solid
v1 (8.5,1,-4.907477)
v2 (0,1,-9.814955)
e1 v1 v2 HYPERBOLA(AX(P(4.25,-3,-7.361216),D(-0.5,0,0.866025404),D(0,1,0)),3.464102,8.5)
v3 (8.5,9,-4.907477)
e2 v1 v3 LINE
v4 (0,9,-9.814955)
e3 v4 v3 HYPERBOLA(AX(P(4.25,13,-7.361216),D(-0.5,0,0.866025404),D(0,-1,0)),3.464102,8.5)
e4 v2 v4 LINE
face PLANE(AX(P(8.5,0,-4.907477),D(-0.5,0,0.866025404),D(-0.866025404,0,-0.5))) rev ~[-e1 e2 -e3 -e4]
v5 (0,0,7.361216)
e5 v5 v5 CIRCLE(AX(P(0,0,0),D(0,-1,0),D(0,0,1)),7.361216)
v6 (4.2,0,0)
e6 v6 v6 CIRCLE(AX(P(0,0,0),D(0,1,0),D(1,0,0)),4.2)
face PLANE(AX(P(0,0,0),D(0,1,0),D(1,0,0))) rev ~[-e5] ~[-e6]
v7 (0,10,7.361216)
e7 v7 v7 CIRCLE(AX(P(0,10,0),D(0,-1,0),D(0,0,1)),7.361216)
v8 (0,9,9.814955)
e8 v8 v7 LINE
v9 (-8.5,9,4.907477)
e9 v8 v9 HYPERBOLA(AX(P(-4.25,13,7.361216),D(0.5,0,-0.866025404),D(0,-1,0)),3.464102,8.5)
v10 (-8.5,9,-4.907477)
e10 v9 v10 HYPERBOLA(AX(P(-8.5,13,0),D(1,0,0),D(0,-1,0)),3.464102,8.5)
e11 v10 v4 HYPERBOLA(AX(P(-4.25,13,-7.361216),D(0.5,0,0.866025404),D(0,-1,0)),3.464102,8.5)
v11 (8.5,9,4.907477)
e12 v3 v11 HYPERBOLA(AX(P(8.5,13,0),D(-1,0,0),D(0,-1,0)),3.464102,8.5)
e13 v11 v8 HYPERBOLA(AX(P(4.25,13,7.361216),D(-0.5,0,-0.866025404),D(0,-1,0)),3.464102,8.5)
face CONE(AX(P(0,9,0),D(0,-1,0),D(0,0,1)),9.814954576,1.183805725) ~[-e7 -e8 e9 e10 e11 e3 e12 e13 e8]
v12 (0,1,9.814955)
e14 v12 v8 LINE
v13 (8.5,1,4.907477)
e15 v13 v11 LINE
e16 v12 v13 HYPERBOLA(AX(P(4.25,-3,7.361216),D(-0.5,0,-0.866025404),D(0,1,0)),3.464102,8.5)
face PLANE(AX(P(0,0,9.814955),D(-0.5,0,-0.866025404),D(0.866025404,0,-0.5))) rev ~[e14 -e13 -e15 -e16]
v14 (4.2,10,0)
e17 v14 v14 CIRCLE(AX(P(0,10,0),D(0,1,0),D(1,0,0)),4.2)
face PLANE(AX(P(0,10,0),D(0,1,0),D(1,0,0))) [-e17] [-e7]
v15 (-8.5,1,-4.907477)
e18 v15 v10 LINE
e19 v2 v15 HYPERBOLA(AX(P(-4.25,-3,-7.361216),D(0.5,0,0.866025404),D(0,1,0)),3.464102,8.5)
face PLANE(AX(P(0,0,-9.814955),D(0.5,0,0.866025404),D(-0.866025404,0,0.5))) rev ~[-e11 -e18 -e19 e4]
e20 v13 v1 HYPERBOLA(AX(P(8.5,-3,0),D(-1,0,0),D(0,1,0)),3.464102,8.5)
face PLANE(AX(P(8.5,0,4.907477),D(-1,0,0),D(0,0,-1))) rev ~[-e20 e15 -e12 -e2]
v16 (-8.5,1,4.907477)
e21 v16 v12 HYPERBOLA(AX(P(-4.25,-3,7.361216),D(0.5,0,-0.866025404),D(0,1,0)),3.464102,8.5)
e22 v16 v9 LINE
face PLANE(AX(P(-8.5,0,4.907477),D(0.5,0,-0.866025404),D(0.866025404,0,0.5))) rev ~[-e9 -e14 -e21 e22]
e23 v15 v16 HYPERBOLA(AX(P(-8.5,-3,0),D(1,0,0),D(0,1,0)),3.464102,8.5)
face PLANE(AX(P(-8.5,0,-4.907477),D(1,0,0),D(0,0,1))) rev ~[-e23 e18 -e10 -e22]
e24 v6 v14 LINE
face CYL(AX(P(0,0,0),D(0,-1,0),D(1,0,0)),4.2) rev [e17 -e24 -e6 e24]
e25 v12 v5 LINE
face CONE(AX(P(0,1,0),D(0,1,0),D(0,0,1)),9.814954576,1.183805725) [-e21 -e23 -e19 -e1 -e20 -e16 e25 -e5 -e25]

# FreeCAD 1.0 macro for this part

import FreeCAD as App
import Part
import Sketcher

V = App.Vector
Q = App.Units.Quantity

doc = App.newDocument("Part")
body = doc.addObject("PartDesign::Body", "Body")

sketch1 = doc.addObject("Sketcher::SketchObject", "Sketch")
body.addObject(sketch1)
sketch1.AttachmentSupport = (doc.XZ_Plane, [""])
sketch1.MapMode = "FlatFace"
sketch1.addGeometry(Part.LineSegment(V(0, -9.8, 0), V(-8.5, -4.9, 0)), False)
sketch1.addGeometry(Part.LineSegment(V(-8.5, -4.9, 0), V(-8.5, 4.9, 0)), False)
sketch1.addGeometry(Part.LineSegment(V(-8.5, 4.9, 0), V(0, 9.8, 0)), False)
sketch1.addGeometry(Part.LineSegment(V(0, 9.8, 0), V(8.5, 4.9, 0)), False)
sketch1.addGeometry(Part.LineSegment(V(8.5, 4.9, 0), V(8.5, -4.9, 0)), False)
sketch1.addGeometry(Part.LineSegment(V(8.5, -4.9, 0), V(0, -9.8, 0)), False)
sketch1.addGeometry(Part.Circle(V(0, 0, 0), V(0, 0, 1), 4.2), False)
sketch1.addConstraint(Sketcher.Constraint("Coincident", 0, 2, 1, 1))
sketch1.addConstraint(Sketcher.Constraint("Coincident", 1, 2, 2, 1))
sketch1.addConstraint(Sketcher.Constraint("Coincident", 2, 2, 3, 1))
sketch1.addConstraint(Sketcher.Constraint("Coincident", 3, 2, 4, 1))
sketch1.addConstraint(Sketcher.Constraint("Coincident", 4, 2, 5, 1))
sketch1.addConstraint(Sketcher.Constraint("Coincident", 5, 2, 0, 1))
sketch1.addConstraint(Sketcher.Constraint("Vertical", 1))
sketch1.addConstraint(Sketcher.Constraint("Vertical", 4))
sketch1.addConstraint(Sketcher.Constraint("Coincident", 6, 3, -1, 1))
sketch1.addConstraint(Sketcher.Constraint("Symmetric", 0, 2, 3, 2, -1, 1))
sketch1.addConstraint(Sketcher.Constraint("Symmetric", 2, 2, 5, 2, -1, 1))
sketch1.addConstraint(Sketcher.Constraint("PointOnObject", 2, 2, -2))
sketch1.addConstraint(Sketcher.Constraint("Parallel", 2, 5))
sketch1.addConstraint(Sketcher.Constraint("Horizontal", 1, 2, 3, 2))
sketch1.addConstraint(Sketcher.Constraint("Diameter", 6, 8.4))
sketch1.addConstraint(Sketcher.Constraint("Angle", 0, Q("150 deg")))
sketch1.addConstraint(Sketcher.Constraint("DistanceX", 1, 2, 3, 2, 17.0))
sketch1.addConstraint(Sketcher.Constraint("DistanceY", 1, 1, 1, 2, 9.814955))
pad1 = doc.addObject("PartDesign::Pad", "Pad")
body.addObject(pad1)
pad1.Profile = sketch1
pad1.Length = 10
pad1.Reversed = True

sketch2 = doc.addObject("Sketcher::SketchObject", "Sketch001")
body.addObject(sketch2)
sketch2.AttachmentSupport = (doc.YZ_Plane, [""])
sketch2.MapMode = "FlatFace"
sketch2.addGeometry(Part.LineSegment(V(9, 9.8, 0), V(10, 7.4, 0)), False)
sketch2.addGeometry(Part.LineSegment(V(10, 7.4, 0), V(10, 9.8, 0)), False)
sketch2.addGeometry(Part.LineSegment(V(10, 9.8, 0), V(9, 9.8, 0)), False)
sketch2.addGeometry(Part.LineSegment(V(0, 9.8, 0), V(0, 7.4, 0)), False)
sketch2.addGeometry(Part.LineSegment(V(0, 7.4, 0), V(1, 9.8, 0)), False)
sketch2.addGeometry(Part.LineSegment(V(1, 9.8, 0), V(0, 9.8, 0)), False)
sketch2.addConstraint(Sketcher.Constraint("Coincident", 0, 2, 1, 1))
sketch2.addConstraint(Sketcher.Constraint("Coincident", 1, 2, 2, 1))
sketch2.addConstraint(Sketcher.Constraint("Coincident", 2, 2, 0, 1))
sketch2.addConstraint(Sketcher.Constraint("Coincident", 3, 2, 4, 1))
sketch2.addConstraint(Sketcher.Constraint("Coincident", 4, 2, 5, 1))
sketch2.addConstraint(Sketcher.Constraint("Coincident", 5, 2, 3, 1))
sketch2.addConstraint(Sketcher.Constraint("Vertical", 1))
sketch2.addConstraint(Sketcher.Constraint("Horizontal", 2))
sketch2.addConstraint(Sketcher.Constraint("Vertical", 3))
sketch2.addConstraint(Sketcher.Constraint("Horizontal", 5))
sketch2.addConstraint(Sketcher.Constraint("PointOnObject", 3, 2, -2))
sketch2.addConstraint(Sketcher.Constraint("Horizontal", 0, 2, 3, 2))
sketch2.addConstraint(Sketcher.Constraint("Horizontal", 2, 2, 4, 2))
sketch2.addConstraint(Sketcher.Constraint("Equal", 2, 5))
sketch2.addConstraint(Sketcher.Constraint("DistanceX", 2, 2, 2, 1, 1.0))
sketch2.addConstraint(Sketcher.Constraint("DistanceX", -1, 1, 0, 2, 10.0))
sketch2.addConstraint(Sketcher.Constraint("DistanceY", 1, 1, 1, 2, 2.453739))
sketch2.addConstraint(Sketcher.Constraint("DistanceY", -1, 1, 0, 2, 7.361216))
groove = doc.addObject("PartDesign::Groove", "Groove")
body.addObject(groove)
groove.Profile = sketch2
groove.ReferenceAxis = (sketch2, ["H_Axis"])
groove.Angle = 360

doc.recompute()
